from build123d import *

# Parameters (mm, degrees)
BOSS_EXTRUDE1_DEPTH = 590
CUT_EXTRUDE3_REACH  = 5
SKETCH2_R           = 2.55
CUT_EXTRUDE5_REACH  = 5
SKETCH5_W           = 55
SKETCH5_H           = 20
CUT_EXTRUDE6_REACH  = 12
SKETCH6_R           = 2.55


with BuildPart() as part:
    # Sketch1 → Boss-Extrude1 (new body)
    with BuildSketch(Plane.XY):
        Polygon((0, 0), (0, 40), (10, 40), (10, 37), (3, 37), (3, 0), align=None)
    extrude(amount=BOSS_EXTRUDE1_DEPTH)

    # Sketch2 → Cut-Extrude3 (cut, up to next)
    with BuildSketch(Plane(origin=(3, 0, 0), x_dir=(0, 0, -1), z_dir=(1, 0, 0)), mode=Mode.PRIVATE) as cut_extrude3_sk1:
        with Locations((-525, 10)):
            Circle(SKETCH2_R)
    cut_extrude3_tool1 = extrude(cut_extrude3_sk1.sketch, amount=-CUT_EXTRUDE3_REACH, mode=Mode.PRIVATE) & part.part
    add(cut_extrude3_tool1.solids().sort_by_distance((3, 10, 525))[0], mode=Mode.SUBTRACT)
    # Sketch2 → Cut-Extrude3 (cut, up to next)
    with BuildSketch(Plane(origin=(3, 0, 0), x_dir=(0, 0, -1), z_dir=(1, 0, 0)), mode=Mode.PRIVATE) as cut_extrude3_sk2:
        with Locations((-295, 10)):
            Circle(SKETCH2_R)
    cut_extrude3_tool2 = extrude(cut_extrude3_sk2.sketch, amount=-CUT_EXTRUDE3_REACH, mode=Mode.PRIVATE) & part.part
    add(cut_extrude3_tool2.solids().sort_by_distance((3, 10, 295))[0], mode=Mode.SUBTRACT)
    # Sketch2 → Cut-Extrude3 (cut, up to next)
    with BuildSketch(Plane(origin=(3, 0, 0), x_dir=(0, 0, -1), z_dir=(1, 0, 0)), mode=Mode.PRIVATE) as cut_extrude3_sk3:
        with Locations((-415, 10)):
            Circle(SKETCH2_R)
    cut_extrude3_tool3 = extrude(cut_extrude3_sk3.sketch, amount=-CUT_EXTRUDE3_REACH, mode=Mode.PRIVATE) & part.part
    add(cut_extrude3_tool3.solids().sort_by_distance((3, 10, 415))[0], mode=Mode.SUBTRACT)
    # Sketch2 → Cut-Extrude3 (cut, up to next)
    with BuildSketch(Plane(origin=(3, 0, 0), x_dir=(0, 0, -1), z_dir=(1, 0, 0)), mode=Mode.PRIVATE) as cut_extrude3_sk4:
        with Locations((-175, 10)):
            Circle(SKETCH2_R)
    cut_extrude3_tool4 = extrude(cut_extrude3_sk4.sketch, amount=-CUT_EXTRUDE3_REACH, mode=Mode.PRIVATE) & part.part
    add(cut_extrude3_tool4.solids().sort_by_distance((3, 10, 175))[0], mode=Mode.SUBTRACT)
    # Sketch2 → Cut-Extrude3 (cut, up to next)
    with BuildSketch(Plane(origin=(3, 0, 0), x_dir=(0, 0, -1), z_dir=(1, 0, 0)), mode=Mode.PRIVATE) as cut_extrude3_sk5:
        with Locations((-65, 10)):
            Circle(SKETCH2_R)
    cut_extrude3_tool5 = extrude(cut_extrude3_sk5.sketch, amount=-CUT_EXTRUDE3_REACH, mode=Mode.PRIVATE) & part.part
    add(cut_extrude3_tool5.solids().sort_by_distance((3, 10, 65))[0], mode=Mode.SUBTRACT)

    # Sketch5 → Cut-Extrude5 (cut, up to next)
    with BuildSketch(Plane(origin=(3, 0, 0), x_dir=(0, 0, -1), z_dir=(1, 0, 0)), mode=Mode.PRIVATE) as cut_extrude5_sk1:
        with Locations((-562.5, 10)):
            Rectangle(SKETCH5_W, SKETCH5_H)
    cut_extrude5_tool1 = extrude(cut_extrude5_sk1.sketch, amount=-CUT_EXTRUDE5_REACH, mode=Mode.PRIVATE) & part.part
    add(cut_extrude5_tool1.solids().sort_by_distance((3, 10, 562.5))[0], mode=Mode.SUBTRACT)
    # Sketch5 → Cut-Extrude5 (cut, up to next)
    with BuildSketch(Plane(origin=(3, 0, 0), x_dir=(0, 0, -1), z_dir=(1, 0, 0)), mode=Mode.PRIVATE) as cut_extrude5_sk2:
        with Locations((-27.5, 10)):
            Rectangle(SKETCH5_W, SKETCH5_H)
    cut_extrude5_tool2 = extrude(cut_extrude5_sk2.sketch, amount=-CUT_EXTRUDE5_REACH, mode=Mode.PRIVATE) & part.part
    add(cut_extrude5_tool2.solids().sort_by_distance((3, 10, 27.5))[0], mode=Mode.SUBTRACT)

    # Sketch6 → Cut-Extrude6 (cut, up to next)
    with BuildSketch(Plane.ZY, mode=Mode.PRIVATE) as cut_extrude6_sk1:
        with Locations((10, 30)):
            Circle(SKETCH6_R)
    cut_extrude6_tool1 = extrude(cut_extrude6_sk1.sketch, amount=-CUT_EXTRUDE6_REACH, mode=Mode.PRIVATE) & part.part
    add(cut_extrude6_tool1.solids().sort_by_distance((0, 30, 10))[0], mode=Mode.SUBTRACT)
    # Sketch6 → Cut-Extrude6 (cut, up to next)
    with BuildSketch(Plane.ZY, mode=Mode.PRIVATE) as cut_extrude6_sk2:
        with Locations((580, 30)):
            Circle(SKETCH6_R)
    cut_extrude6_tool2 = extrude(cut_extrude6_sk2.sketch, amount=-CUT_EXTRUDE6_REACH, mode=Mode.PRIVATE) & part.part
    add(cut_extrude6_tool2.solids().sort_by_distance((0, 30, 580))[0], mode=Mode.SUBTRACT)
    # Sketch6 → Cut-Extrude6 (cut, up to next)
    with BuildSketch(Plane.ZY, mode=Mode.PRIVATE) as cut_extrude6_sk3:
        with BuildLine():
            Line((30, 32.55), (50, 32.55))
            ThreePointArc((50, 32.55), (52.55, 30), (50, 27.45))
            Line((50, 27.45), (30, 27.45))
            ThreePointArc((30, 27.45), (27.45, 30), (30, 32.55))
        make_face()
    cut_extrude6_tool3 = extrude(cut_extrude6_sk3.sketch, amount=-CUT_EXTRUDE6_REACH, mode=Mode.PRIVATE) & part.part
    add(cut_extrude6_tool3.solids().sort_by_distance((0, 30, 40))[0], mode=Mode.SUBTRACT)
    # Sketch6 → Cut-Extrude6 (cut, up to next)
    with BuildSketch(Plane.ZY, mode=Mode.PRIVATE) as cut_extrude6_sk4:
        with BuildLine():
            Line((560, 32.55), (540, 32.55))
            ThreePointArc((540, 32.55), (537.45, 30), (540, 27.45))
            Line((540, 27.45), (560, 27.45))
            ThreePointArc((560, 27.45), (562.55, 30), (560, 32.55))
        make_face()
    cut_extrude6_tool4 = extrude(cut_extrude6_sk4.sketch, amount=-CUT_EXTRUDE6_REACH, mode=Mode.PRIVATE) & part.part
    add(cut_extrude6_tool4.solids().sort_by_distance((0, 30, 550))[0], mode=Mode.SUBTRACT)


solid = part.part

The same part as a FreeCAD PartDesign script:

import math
import FreeCAD as App
import Part
import Sketcher
Q = App.Units.Quantity

doc = App.newDocument("Part")
body = doc.addObject("PartDesign::Body", "Body")

sketch1 = body.newObject("Sketcher::SketchObject", "Sketch")
sketch1.AttachmentSupport = (doc.getObject("XY_Plane"), [""])
sketch1.MapMode = "FlatFace"
sketch1.addGeometry([
    Part.LineSegment(App.Vector(0, 40, 0), App.Vector(0, 0, 0)),
    Part.LineSegment(App.Vector(0, 0, 0), App.Vector(3, 0, 0)),
    Part.LineSegment(App.Vector(3, 0, 0), App.Vector(3, 37, 0)),
    Part.LineSegment(App.Vector(3, 37, 0), App.Vector(10, 37, 0)),
    Part.LineSegment(App.Vector(10, 37, 0), App.Vector(10, 40, 0)),
    Part.LineSegment(App.Vector(10, 40, 0), App.Vector(0, 40, 0)),
], False)
sketch1.addConstraint([
    Sketcher.Constraint("Coincident", 0, 2, 1, 1),
    Sketcher.Constraint("Coincident", 1, 2, 2, 1),
    Sketcher.Constraint("Coincident", 2, 2, 3, 1),
    Sketcher.Constraint("Coincident", 3, 2, 4, 1),
    Sketcher.Constraint("Coincident", 4, 2, 5, 1),
    Sketcher.Constraint("Coincident", 5, 2, 0, 1),
    Sketcher.Constraint("Vertical", 0),
    Sketcher.Constraint("Horizontal", 1),
    Sketcher.Constraint("Vertical", 2),
    Sketcher.Constraint("Horizontal", 3),
    Sketcher.Constraint("Vertical", 4),
    Sketcher.Constraint("Horizontal", 5),
    Sketcher.Constraint("Coincident", 0, 2, -1, 1),
    Sketcher.Constraint("Equal", 1, 4),
    Sketcher.Constraint("DistanceX", 1, 1, 1, 2, Q("3 mm")),
    Sketcher.Constraint("DistanceX", 3, 1, 3, 2, Q("7 mm")),
    Sketcher.Constraint("DistanceY", 0, 2, 0, 1, Q("40 mm")),
])
pad1 = body.newObject("PartDesign::Pad", "Pad")
pad1.Profile = sketch1
pad1.Length = 590

sketch2 = body.newObject("Sketcher::SketchObject", "Sketch001")
sketch2.AttachmentSupport = (doc.getObject("YZ_Plane"), [""])
sketch2.MapMode = "FlatFace"
sketch2.AttachmentOffset = App.Placement(App.Vector(0, 0, 3), App.Rotation())
sketch2.addGeometry(Part.Circle(App.Vector(10, 525, 0), App.Vector(0, 0, 1), 2.55), False)
sketch2.addConstraint([
    Sketcher.Constraint("Diameter", 0, Q("5.1 mm")),
    Sketcher.Constraint("DistanceX", -1, 1, 0, 3, Q("10 mm")),
    Sketcher.Constraint("DistanceY", -1, 1, 0, 3, Q("525 mm")),
])
pocket1 = body.newObject("PartDesign::Pocket", "Pocket")
pocket1.Profile = sketch2
pocket1.Type = "UpToFirst"

sketch3 = body.newObject("Sketcher::SketchObject", "Sketch002")
sketch3.AttachmentSupport = (doc.getObject("YZ_Plane"), [""])
sketch3.MapMode = "FlatFace"
sketch3.AttachmentOffset = App.Placement(App.Vector(0, 0, 3), App.Rotation())
sketch3.addGeometry(Part.Circle(App.Vector(10, 295, 0), App.Vector(0, 0, 1), 2.55), False)
sketch3.addConstraint([
    Sketcher.Constraint("Diameter", 0, Q("5.1 mm")),
    Sketcher.Constraint("DistanceX", -1, 1, 0, 3, Q("10 mm")),
    Sketcher.Constraint("DistanceY", -1, 1, 0, 3, Q("295 mm")),
])
pocket2 = body.newObject("PartDesign::Pocket", "Pocket001")
pocket2.Profile = sketch3
pocket2.Type = "UpToFirst"

sketch4 = body.newObject("Sketcher::SketchObject", "Sketch003")
sketch4.AttachmentSupport = (doc.getObject("YZ_Plane"), [""])
sketch4.MapMode = "FlatFace"
sketch4.AttachmentOffset = App.Placement(App.Vector(0, 0, 3), App.Rotation())
sketch4.addGeometry(Part.Circle(App.Vector(10, 415, 0), App.Vector(0, 0, 1), 2.55), False)
sketch4.addConstraint([
    Sketcher.Constraint("Diameter", 0, Q("5.1 mm")),
    Sketcher.Constraint("DistanceX", -1, 1, 0, 3, Q("10 mm")),
    Sketcher.Constraint("DistanceY", -1, 1, 0, 3, Q("415 mm")),
])
pocket3 = body.newObject("PartDesign::Pocket", "Pocket002")
pocket3.Profile = sketch4
pocket3.Type = "UpToFirst"

sketch5 = body.newObject("Sketcher::SketchObject", "Sketch004")
sketch5.AttachmentSupport = (doc.getObject("YZ_Plane"), [""])
sketch5.MapMode = "FlatFace"
sketch5.AttachmentOffset = App.Placement(App.Vector(0, 0, 3), App.Rotation())
sketch5.addGeometry(Part.Circle(App.Vector(10, 175, 0), App.Vector(0, 0, 1), 2.55), False)
sketch5.addConstraint([
    Sketcher.Constraint("Diameter", 0, Q("5.1 mm")),
    Sketcher.Constraint("DistanceX", -1, 1, 0, 3, Q("10 mm")),
    Sketcher.Constraint("DistanceY", -1, 1, 0, 3, Q("175 mm")),
])
pocket4 = body.newObject("PartDesign::Pocket", "Pocket003")
pocket4.Profile = sketch5
pocket4.Type = "UpToFirst"

sketch6 = body.newObject("Sketcher::SketchObject", "Sketch005")
sketch6.AttachmentSupport = (doc.getObject("YZ_Plane"), [""])
sketch6.MapMode = "FlatFace"
sketch6.AttachmentOffset = App.Placement(App.Vector(0, 0, 3), App.Rotation())
sketch6.addGeometry(Part.Circle(App.Vector(10, 65, 0), App.Vector(0, 0, 1), 2.55), False)
sketch6.addConstraint([
    Sketcher.Constraint("Diameter", 0, Q("5.1 mm")),
    Sketcher.Constraint("DistanceX", -1, 1, 0, 3, Q("10 mm")),
    Sketcher.Constraint("DistanceY", -1, 1, 0, 3, Q("65 mm")),
])
pocket5 = body.newObject("PartDesign::Pocket", "Pocket004")
pocket5.Profile = sketch6
pocket5.Type = "UpToFirst"

sketch7 = body.newObject("Sketcher::SketchObject", "Sketch006")
sketch7.AttachmentSupport = (doc.getObject("YZ_Plane"), [""])
sketch7.MapMode = "FlatFace"
sketch7.AttachmentOffset = App.Placement(App.Vector(0, 0, 3), App.Rotation())
sketch7.addGeometry([
    Part.LineSegment(App.Vector(20, 590, 0), App.Vector(0, 590, 0)),
    Part.LineSegment(App.Vector(0, 590, 0), App.Vector(0, 535, 0)),
    Part.LineSegment(App.Vector(0, 535, 0), App.Vector(20, 535, 0)),
    Part.LineSegment(App.Vector(20, 535, 0), App.Vector(20, 590, 0)),
], False)
sketch7.addConstraint([
    Sketcher.Constraint("Coincident", 0, 2, 1, 1),
    Sketcher.Constraint("Coincident", 1, 2, 2, 1),
    Sketcher.Constraint("Coincident", 2, 2, 3, 1),
    Sketcher.Constraint("Coincident", 3, 2, 0, 1),
    Sketcher.Constraint("Horizontal", 0),
    Sketcher.Constraint("Vertical", 1),
    Sketcher.Constraint("Horizontal", 2),
    Sketcher.Constraint("Vertical", 3),
    Sketcher.Constraint("PointOnObject", 0, 2, -2),
    Sketcher.Constraint("DistanceX", 0, 2, 0, 1, Q("20 mm")),
    Sketcher.Constraint("DistanceY", 1, 2, 1, 1, Q("55 mm")),
    Sketcher.Constraint("DistanceY", -1, 1, 0, 2, Q("590 mm")),
])
pocket6 = body.newObject("PartDesign::Pocket", "Pocket005")
pocket6.Profile = sketch7
pocket6.Type = "UpToFirst"

sketch8 = body.newObject("Sketcher::SketchObject", "Sketch007")
sketch8.AttachmentSupport = (doc.getObject("YZ_Plane"), [""])
sketch8.MapMode = "FlatFace"
sketch8.AttachmentOffset = App.Placement(App.Vector(0, 0, 3), App.Rotation())
sketch8.addGeometry([
    Part.LineSegment(App.Vector(20, 55, 0), App.Vector(0, 55, 0)),
    Part.LineSegment(App.Vector(0, 55, 0), App.Vector(0, 0, 0)),
    Part.LineSegment(App.Vector(0, 0, 0), App.Vector(20, 0, 0)),
    Part.LineSegment(App.Vector(20, 0, 0), App.Vector(20, 55, 0)),
], False)
sketch8.addConstraint([
    Sketcher.Constraint("Coincident", 0, 2, 1, 1),
    Sketcher.Constraint("Coincident", 1, 2, 2, 1),
    Sketcher.Constraint("Coincident", 2, 2, 3, 1),
    Sketcher.Constraint("Coincident", 3, 2, 0, 1),
    Sketcher.Constraint("Horizontal", 0),
    Sketcher.Constraint("Vertical", 1),
    Sketcher.Constraint("Horizontal", 2),
    Sketcher.Constraint("Vertical", 3),
    Sketcher.Constraint("Coincident", 1, 2, -1, 1),
    Sketcher.Constraint("DistanceX", 0, 2, 0, 1, Q("20 mm")),
    Sketcher.Constraint("DistanceY", 1, 2, 1, 1, Q("55 mm")),
])
pocket7 = body.newObject("PartDesign::Pocket", "Pocket006")
pocket7.Profile = sketch8
pocket7.Type = "UpToFirst"

sketch9 = body.newObject("Sketcher::SketchObject", "Sketch008")
sketch9.AttachmentSupport = (doc.getObject("YZ_Plane"), [""])
sketch9.MapMode = "FlatFace"
sketch9.addGeometry(Part.Circle(App.Vector(30, 10, 0), App.Vector(0, 0, 1), 2.55), False)
sketch9.addConstraint([
    Sketcher.Constraint("Diameter", 0, Q("5.1 mm")),
    Sketcher.Constraint("DistanceX", -1, 1, 0, 3, Q("30 mm")),
    Sketcher.Constraint("DistanceY", -1, 1, 0, 3, Q("10 mm")),
])
pocket8 = body.newObject("PartDesign::Pocket", "Pocket007")
pocket8.Profile = sketch9
pocket8.Type = "UpToFirst"
pocket8.Reversed = True

sketch10 = body.newObject("Sketcher::SketchObject", "Sketch009")
sketch10.AttachmentSupport = (doc.getObject("YZ_Plane"), [""])
sketch10.MapMode = "FlatFace"
sketch10.addGeometry(Part.Circle(App.Vector(30, 580, 0), App.Vector(0, 0, 1), 2.55), False)
sketch10.addConstraint([
    Sketcher.Constraint("Diameter", 0, Q("5.1 mm")),
    Sketcher.Constraint("DistanceX", -1, 1, 0, 3, Q("30 mm")),
    Sketcher.Constraint("DistanceY", -1, 1, 0, 3, Q("580 mm")),
])
pocket9 = body.newObject("PartDesign::Pocket", "Pocket008")
pocket9.Profile = sketch10
pocket9.Type = "UpToFirst"
pocket9.Reversed = True

sketch11 = body.newObject("Sketcher::SketchObject", "Sketch010")
sketch11.AttachmentSupport = (doc.getObject("YZ_Plane"), [""])
sketch11.MapMode = "FlatFace"
sketch11.addGeometry([
    Part.LineSegment(App.Vector(32.55, 50, 0), App.Vector(32.55, 30, 0)),
    Part.ArcOfCircle(Part.Circle(App.Vector(30, 30, 0), App.Vector(0, 0, 1), 2.55), math.radians(180), math.radians(360)),
    Part.LineSegment(App.Vector(27.45, 30, 0), App.Vector(27.45, 50, 0)),
    Part.ArcOfCircle(Part.Circle(App.Vector(30, 50, 0), App.Vector(0, 0, 1), 2.55), math.radians(0), math.radians(180)),
], False)
sketch11.addConstraint([
    Sketcher.Constraint("Tangent", 0, 2, 1, 2),
    Sketcher.Constraint("Tangent", 1, 1, 2, 1),
    Sketcher.Constraint("Tangent", 2, 2, 3, 2),
    Sketcher.Constraint("Tangent", 3, 1, 0, 1),
    Sketcher.Constraint("Vertical", 0),
    Sketcher.Constraint("Vertical", 2),
    Sketcher.Constraint("DistanceY", 0, 2, 0, 1, Q("20 mm")),
    Sketcher.Constraint("Radius", 1, Q("2.55 mm")),
    Sketcher.Constraint("DistanceX", -1, 1, 1, 3, Q("30 mm")),
    Sketcher.Constraint("DistanceY", -1, 1, 1, 3, Q("30 mm")),
])
pocket10 = body.newObject("PartDesign::Pocket", "Pocket009")
pocket10.Profile = sketch11
pocket10.Type = "UpToFirst"
pocket10.Reversed = True

sketch12 = body.newObject("Sketcher::SketchObject", "Sketch011")
sketch12.AttachmentSupport = (doc.getObject("YZ_Plane"), [""])
sketch12.MapMode = "FlatFace"
sketch12.addGeometry([
    Part.LineSegment(App.Vector(32.55, 560, 0), App.Vector(32.55, 540, 0)),
    Part.ArcOfCircle(Part.Circle(App.Vector(30, 540, 0), App.Vector(0, 0, 1), 2.55), math.radians(180), math.radians(360)),
    Part.LineSegment(App.Vector(27.45, 540, 0), App.Vector(27.45, 560, 0)),
    Part.ArcOfCircle(Part.Circle(App.Vector(30, 560, 0), App.Vector(0, 0, 1), 2.55), math.radians(0), math.radians(180)),
], False)
sketch12.addConstraint([
    Sketcher.Constraint("Tangent", 0, 2, 1, 2),
    Sketcher.Constraint("Tangent", 1, 1, 2, 1),
    Sketcher.Constraint("Tangent", 2, 2, 3, 2),
    Sketcher.Constraint("Tangent", 3, 1, 0, 1),
    Sketcher.Constraint("Vertical", 0),
    Sketcher.Constraint("Vertical", 2),
    Sketcher.Constraint("DistanceY", 0, 2, 0, 1, Q("20 mm")),
    Sketcher.Constraint("Radius", 1, Q("2.55 mm")),
    Sketcher.Constraint("DistanceX", -1, 1, 1, 3, Q("30 mm")),
    Sketcher.Constraint("DistanceY", -1, 1, 1, 3, Q("540 mm")),
])
pocket11 = body.newObject("PartDesign::Pocket", "Pocket010")
pocket11.Profile = sketch12
pocket11.Type = "UpToFirst"
pocket11.Reversed = True

doc.recompute()
